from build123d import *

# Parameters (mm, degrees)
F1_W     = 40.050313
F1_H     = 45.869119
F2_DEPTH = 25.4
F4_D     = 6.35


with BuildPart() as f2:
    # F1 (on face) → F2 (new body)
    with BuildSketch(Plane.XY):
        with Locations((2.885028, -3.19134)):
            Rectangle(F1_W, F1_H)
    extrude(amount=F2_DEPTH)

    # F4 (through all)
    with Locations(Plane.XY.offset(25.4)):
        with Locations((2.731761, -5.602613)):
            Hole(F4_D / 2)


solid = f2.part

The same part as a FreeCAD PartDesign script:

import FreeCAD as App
import Part
import Sketcher

V = App.Vector
Q = App.Units.Quantity


def add_polygon(sketch, points):
    """Adds a closed chain of lines whose ends are joined by coincident constraints."""
    first, n = sketch.GeometryCount, len(points)
    for a, b in zip(points, points[1:] + points[:1]):
        sketch.addGeometry(Part.LineSegment(App.Vector(*a, 0), App.Vector(*b, 0)), False)
    for i in range(n):
        sketch.addConstraint(Sketcher.Constraint("Coincident", first + i, 2, first + (i + 1) % n, 1))

doc = App.newDocument("Part")
body = doc.addObject("PartDesign::Body", "Body")

# Sketch on XY plane
sketch1 = body.newObject("Sketcher::SketchObject", "Sketch")
sketch1.AttachmentSupport = (doc.getObject("XY_Plane"), [""])
sketch1.MapMode = "FlatFace"
add_polygon(sketch1, [(-17, 20), (-17, -26), (23, -26), (23, 20)])  # lines 0-3
sketch1.addConstraint([
    Sketcher.Constraint("Vertical", 0),
    Sketcher.Constraint("Horizontal", 1),
    Sketcher.Constraint("Vertical", 2),
    Sketcher.Constraint("Horizontal", 3),
    Sketcher.Constraint("DistanceY", 0, 2, 0, 1, Q("45.869119 mm")),
    Sketcher.Constraint("DistanceY", 0, 2, -1, 1, Q("26.125899 mm")),
    Sketcher.Constraint("DistanceX", 1, 1, 1, 2, Q("40.050313 mm")),
    Sketcher.Constraint("DistanceX", 0, 2, -1, 1, Q("17.140128 mm")),
])
pad1 = body.newObject("PartDesign::Pad", "Pad")
pad1.Profile = sketch1
pad1.Length = Q("1 in")

# Sketch on XY plane
sketch2 = body.newObject("Sketcher::SketchObject", "Sketch001")
sketch2.AttachmentSupport = (doc.getObject("XY_Plane"), [""])
sketch2.MapMode = "FlatFace"
sketch2.AttachmentOffset = App.Placement(V(0, 0, 1 * 25.4), App.Rotation())
sketch2.addGeometry(Part.Circle(V(2.7, -5.6, 0), V(0, 0, 1), 3.2), False)
sketch2.addConstraint([
    Sketcher.Constraint("Diameter", 0, Q("0.25 in")),
    Sketcher.Constraint("DistanceX", -1, 1, 0, 3, Q("2.731761 mm")),
    Sketcher.Constraint("DistanceY", 0, 3, -1, 1, Q("5.602613 mm")),
])
doc.recompute()
hole = body.newObject("PartDesign::Hole", "Hole")
hole.Profile = sketch2
hole.ThreadType = "None"
hole.Diameter = Q("0.25 in")
hole.DepthType = "ThroughAll"

doc.recompute()
